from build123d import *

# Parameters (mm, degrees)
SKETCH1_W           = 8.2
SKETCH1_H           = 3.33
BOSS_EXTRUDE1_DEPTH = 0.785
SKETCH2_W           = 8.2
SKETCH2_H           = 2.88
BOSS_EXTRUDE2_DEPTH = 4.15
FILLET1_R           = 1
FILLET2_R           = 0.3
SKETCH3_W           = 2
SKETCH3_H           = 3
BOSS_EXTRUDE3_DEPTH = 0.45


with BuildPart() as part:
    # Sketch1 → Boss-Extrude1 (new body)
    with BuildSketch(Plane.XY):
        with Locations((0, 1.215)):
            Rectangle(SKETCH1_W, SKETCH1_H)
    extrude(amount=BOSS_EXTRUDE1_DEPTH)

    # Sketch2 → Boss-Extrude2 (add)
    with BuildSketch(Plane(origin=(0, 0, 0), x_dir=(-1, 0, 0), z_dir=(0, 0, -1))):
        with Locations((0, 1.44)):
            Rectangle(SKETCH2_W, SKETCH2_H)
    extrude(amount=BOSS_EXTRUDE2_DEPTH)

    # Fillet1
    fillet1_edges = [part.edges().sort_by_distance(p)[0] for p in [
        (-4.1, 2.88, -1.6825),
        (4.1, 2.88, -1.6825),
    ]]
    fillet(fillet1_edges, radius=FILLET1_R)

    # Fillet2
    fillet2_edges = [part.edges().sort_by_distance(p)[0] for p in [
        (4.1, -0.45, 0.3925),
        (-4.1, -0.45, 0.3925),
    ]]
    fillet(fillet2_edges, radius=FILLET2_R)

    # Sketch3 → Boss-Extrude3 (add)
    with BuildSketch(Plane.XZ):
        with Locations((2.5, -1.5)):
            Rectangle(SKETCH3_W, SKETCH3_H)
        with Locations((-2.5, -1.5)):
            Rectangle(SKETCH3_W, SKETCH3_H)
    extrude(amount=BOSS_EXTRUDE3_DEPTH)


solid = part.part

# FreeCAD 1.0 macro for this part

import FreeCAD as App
import Part
import Sketcher
from FreeCAD import Vector


def edges_at(feature, points):
    """Names of the edges that pass closest to the given points."""
    edges = feature.Shape.Edges
    near = lambda p: min(range(len(edges)), key=lambda i: edges[i].distToShape(Part.Vertex(*p))[0])
    return sorted({f"Edge{near(p) + 1}" for p in points})

doc = App.newDocument("Part")
params = doc.addObject("Spreadsheet::Sheet", "Params")
for row, (alias, value) in enumerate([
    ("sketch1_width", "8.2 mm"),
    ("sketch1_height", "3.33 mm"),
    ("pad1_length", "0.785 mm"),
    ("sketch2_width", "8.2 mm"),
    ("sketch2_height", "2.88 mm"),
    ("pad2_length", "4.15 mm"),
    ("fillet_radius", "1 mm"),
    ("fillet2_radius", "0.3 mm"),
    ("sketch3_width", "2 mm"),
    ("sketch3_height", "3 mm"),
    ("pad3_length", "0.45 mm"),
], start=1):
    params.set(f"A{row}", alias)
    params.set(f"B{row}", "=" + value)
    params.setAlias(f"B{row}", alias)

body = doc.addObject("PartDesign::Body", "Body")

# Sketch on XY plane
sketch1 = body.newObject("Sketcher::SketchObject", "Sketch")
sketch1.AttachmentSupport = (doc.getObject("XY_Plane"), [""])
sketch1.MapMode = "FlatFace"
sketch1.addGeometry(Part.LineSegment(Vector(-4.1, 2.88, 0), Vector(-4.1, -0.45, 0)), False)
sketch1.addGeometry(Part.LineSegment(Vector(-4.1, -0.45, 0), Vector(4.1, -0.45, 0)), False)
sketch1.addGeometry(Part.LineSegment(Vector(4.1, -0.45, 0), Vector(4.1, 2.88, 0)), False)
sketch1.addGeometry(Part.LineSegment(Vector(4.1, 2.88, 0), Vector(-4.1, 2.88, 0)), False)
sketch1.addConstraint(Sketcher.Constraint("Coincident", 0, 2, 1, 1))
sketch1.addConstraint(Sketcher.Constraint("Coincident", 1, 2, 2, 1))
sketch1.addConstraint(Sketcher.Constraint("Coincident", 2, 2, 3, 1))
sketch1.addConstraint(Sketcher.Constraint("Coincident", 3, 2, 0, 1))
sketch1.addConstraint(Sketcher.Constraint("Vertical", 0))
sketch1.addConstraint(Sketcher.Constraint("Horizontal", 1))
sketch1.addConstraint(Sketcher.Constraint("Vertical", 2))
sketch1.addConstraint(Sketcher.Constraint("Horizontal", 3))
sketch1.addConstraint(Sketcher.Constraint("DistanceX", 1, 1, 1, 2, 8.2))
sketch1.addConstraint(Sketcher.Constraint("DistanceY", 0, 2, 0, 1, 3.33))
sketch1.addConstraint(Sketcher.Constraint("DistanceX", 0, 2, -1, 1, 4.1))
sketch1.addConstraint(Sketcher.Constraint("DistanceY", 0, 2, -1, 1, 0.45))
sketch1.setExpression("Constraints[8]", "Params.sketch1_width")
sketch1.setExpression("Constraints[9]", "Params.sketch1_height")
pad1 = body.newObject("PartDesign::Pad", "Pad")
pad1.Profile = sketch1
pad1.setExpression("Length", "Params.pad1_length")

# Sketch on XY plane
sketch2 = body.newObject("Sketcher::SketchObject", "Sketch001")
sketch2.AttachmentSupport = (doc.getObject("XY_Plane"), [""])
sketch2.MapMode = "FlatFace"
sketch2.addGeometry(Part.LineSegment(Vector(4.1, 2.88, 0), Vector(4.1, 0, 0)), False)
sketch2.addGeometry(Part.LineSegment(Vector(4.1, 0, 0), Vector(-4.1, 0, 0)), False)
sketch2.addGeometry(Part.LineSegment(Vector(-4.1, 0, 0), Vector(-4.1, 2.88, 0)), False)
sketch2.addGeometry(Part.LineSegment(Vector(-4.1, 2.88, 0), Vector(4.1, 2.88, 0)), False)
sketch2.addConstraint(Sketcher.Constraint("Coincident", 0, 2, 1, 1))
sketch2.addConstraint(Sketcher.Constraint("Coincident", 1, 2, 2, 1))
sketch2.addConstraint(Sketcher.Constraint("Coincident", 2, 2, 3, 1))
sketch2.addConstraint(Sketcher.Constraint("Coincident", 3, 2, 0, 1))
sketch2.addConstraint(Sketcher.Constraint("Vertical", 0))
sketch2.addConstraint(Sketcher.Constraint("Horizontal", 1))
sketch2.addConstraint(Sketcher.Constraint("Vertical", 2))
sketch2.addConstraint(Sketcher.Constraint("Horizontal", 3))
sketch2.addConstraint(Sketcher.Constraint("Symmetric", 0, 2, 1, 2, -1, 1))
sketch2.addConstraint(Sketcher.Constraint("DistanceX", 1, 2, 1, 1, 8.2))
sketch2.addConstraint(Sketcher.Constraint("DistanceY", 0, 2, 0, 1, 2.88))
sketch2.setExpression("Constraints[9]", "Params.sketch2_width")
sketch2.setExpression("Constraints[10]", "Params.sketch2_height")
pad2 = body.newObject("PartDesign::Pad", "Pad001")
pad2.Profile = sketch2
pad2.setExpression("Length", "Params.pad2_length")
pad2.Reversed = True
doc.recompute()

fillet = body.newObject("PartDesign::Fillet", "Fillet")
fillet.Base = (pad2, edges_at(pad2, [(-4.1, 2.88, -1.683), (4.1, 2.88, -1.683)]))
fillet.setExpression("Radius", "Params.fillet_radius")
doc.recompute()

fillet2 = body.newObject("PartDesign::Fillet", "Fillet001")
fillet2.Base = (fillet, edges_at(fillet, [(4.1, -0.45, 0.393), (-4.1, -0.45, 0.393)]))
fillet2.setExpression("Radius", "Params.fillet2_radius")

# Sketch on XZ plane
sketch3 = body.newObject("Sketcher::SketchObject", "Sketch002")
sketch3.AttachmentSupport = (doc.getObject("XZ_Plane"), [""])
sketch3.MapMode = "FlatFace"
sketch3.addGeometry(Part.LineSegment(Vector(1.5, 0, 0), Vector(1.5, -3, 0)), False)
sketch3.addGeometry(Part.LineSegment(Vector(1.5, -3, 0), Vector(3.5, -3, 0)), False)
sketch3.addGeometry(Part.LineSegment(Vector(3.5, -3, 0), Vector(3.5, 0, 0)), False)
sketch3.addGeometry(Part.LineSegment(Vector(3.5, 0, 0), Vector(1.5, 0, 0)), False)
sketch3.addGeometry(Part.LineSegment(Vector(-3.5, 0, 0), Vector(-3.5, -3, 0)), False)
sketch3.addGeometry(Part.LineSegment(Vector(-3.5, -3, 0), Vector(-1.5, -3, 0)), False)
sketch3.addGeometry(Part.LineSegment(Vector(-1.5, -3, 0), Vector(-1.5, 0, 0)), False)
sketch3.addGeometry(Part.LineSegment(Vector(-1.5, 0, 0), Vector(-3.5, 0, 0)), False)
sketch3.addConstraint(Sketcher.Constraint("Coincident", 0, 2, 1, 1))
sketch3.addConstraint(Sketcher.Constraint("Coincident", 1, 2, 2, 1))
sketch3.addConstraint(Sketcher.Constraint("Coincident", 2, 2, 3, 1))
sketch3.addConstraint(Sketcher.Constraint("Coincident", 3, 2, 0, 1))
sketch3.addConstraint(Sketcher.Constraint("Coincident", 4, 2, 5, 1))
sketch3.addConstraint(Sketcher.Constraint("Coincident", 5, 2, 6, 1))
sketch3.addConstraint(Sketcher.Constraint("Coincident", 6, 2, 7, 1))
sketch3.addConstraint(Sketcher.Constraint("Coincident", 7, 2, 4, 1))
sketch3.addConstraint(Sketcher.Constraint("Vertical", 0))
sketch3.addConstraint(Sketcher.Constraint("Horizontal", 1))
sketch3.addConstraint(Sketcher.Constraint("Vertical", 2))
sketch3.addConstraint(Sketcher.Constraint("Horizontal", 3))
sketch3.addConstraint(Sketcher.Constraint("Vertical", 4))
sketch3.addConstraint(Sketcher.Constraint("Horizontal", 5))
sketch3.addConstraint(Sketcher.Constraint("Vertical", 6))
sketch3.addConstraint(Sketcher.Constraint("Horizontal", 7))
sketch3.addConstraint(Sketcher.Constraint("Symmetric", 3, 2, 6, 2, -1, 1))
sketch3.addConstraint(Sketcher.Constraint("Symmetric", 1, 2, 4, 2, -2))
sketch3.addConstraint(Sketcher.Constraint("PointOnObject", 2, 2, -1))
sketch3.addConstraint(Sketcher.Constraint("DistanceX", 1, 1, 1, 2, 2.0))
sketch3.addConstraint(Sketcher.Constraint("DistanceY", 0, 2, 0, 1, 3.0))
sketch3.addConstraint(Sketcher.Constraint("DistanceX", 4, 2, 0, 2, 5.0))
sketch3.setExpression("Constraints[19]", "Params.sketch3_width")
sketch3.setExpression("Constraints[20]", "Params.sketch3_height")
pad3 = body.newObject("PartDesign::Pad", "Pad002")
pad3.Profile = sketch3
pad3.setExpression("Length", "Params.pad3_length")

doc.recompute()
